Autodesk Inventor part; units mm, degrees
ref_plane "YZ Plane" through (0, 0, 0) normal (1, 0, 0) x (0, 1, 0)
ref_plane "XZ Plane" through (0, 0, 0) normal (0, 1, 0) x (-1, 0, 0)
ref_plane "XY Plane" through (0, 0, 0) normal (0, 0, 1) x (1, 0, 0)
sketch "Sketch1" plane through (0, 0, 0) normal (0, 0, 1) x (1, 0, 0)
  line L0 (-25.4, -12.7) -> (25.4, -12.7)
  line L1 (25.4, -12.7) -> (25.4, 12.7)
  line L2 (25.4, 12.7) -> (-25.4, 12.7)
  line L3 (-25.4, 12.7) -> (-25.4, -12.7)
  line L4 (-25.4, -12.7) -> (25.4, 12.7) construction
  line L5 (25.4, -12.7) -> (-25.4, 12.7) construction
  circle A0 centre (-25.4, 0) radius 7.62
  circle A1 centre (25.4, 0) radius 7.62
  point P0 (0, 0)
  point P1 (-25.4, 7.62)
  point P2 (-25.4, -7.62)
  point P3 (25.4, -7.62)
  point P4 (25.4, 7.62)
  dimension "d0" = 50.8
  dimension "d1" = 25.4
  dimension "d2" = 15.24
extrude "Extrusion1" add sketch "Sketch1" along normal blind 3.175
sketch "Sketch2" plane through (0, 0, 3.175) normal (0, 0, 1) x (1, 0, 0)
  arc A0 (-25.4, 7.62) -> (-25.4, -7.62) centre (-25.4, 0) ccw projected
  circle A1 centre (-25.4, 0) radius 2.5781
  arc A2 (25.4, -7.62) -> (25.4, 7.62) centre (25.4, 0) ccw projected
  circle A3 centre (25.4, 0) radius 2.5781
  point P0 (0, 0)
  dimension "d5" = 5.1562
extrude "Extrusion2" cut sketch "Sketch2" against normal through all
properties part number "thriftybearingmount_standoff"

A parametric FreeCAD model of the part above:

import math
import FreeCAD as App
import Part
import Sketcher
Q = App.Units.Quantity

doc = App.newDocument("Part")
body = doc.addObject("PartDesign::Body", "Body")

sketch1 = doc.addObject("Sketcher::SketchObject", "Sketch")
body.addObject(sketch1)
sketch1.AttachmentSupport = (doc.XY_Plane, [""])
sketch1.MapMode = "FlatFace"
sketch1.addGeometry(Part.LineSegment(App.Vector(-25, -8, 0), App.Vector(-25, -13, 0)), False)
sketch1.addGeometry(Part.LineSegment(App.Vector(-25, -13, 0), App.Vector(25, -13, 0)), False)
sketch1.addGeometry(Part.LineSegment(App.Vector(25, -13, 0), App.Vector(25, -8, 0)), False)
sketch1.addGeometry(Part.ArcOfCircle(Part.Circle(App.Vector(25, 0, 0), App.Vector(0, 0, 1), 8), math.radians(-90), math.radians(90)), False)
sketch1.addGeometry(Part.LineSegment(App.Vector(25, 8, 0), App.Vector(25, 13, 0)), False)
sketch1.addGeometry(Part.LineSegment(App.Vector(25, 13, 0), App.Vector(-25, 13, 0)), False)
sketch1.addGeometry(Part.LineSegment(App.Vector(-25, 13, 0), App.Vector(-25, 8, 0)), False)
sketch1.addGeometry(Part.ArcOfCircle(Part.Circle(App.Vector(-25, 0, 0), App.Vector(0, 0, 1), 8), math.radians(90), math.radians(270)), False)
sketch1.addConstraint(Sketcher.Constraint("Coincident", 0, 2, 1, 1))
sketch1.addConstraint(Sketcher.Constraint("Coincident", 1, 2, 2, 1))
sketch1.addConstraint(Sketcher.Constraint("Coincident", 2, 2, 3, 1))
sketch1.addConstraint(Sketcher.Constraint("Coincident", 3, 2, 4, 1))
sketch1.addConstraint(Sketcher.Constraint("Coincident", 4, 2, 5, 1))
sketch1.addConstraint(Sketcher.Constraint("Coincident", 5, 2, 6, 1))
sketch1.addConstraint(Sketcher.Constraint("Coincident", 6, 2, 7, 1))
sketch1.addConstraint(Sketcher.Constraint("Coincident", 7, 2, 0, 1))
sketch1.addConstraint(Sketcher.Constraint("Vertical", 0))
sketch1.addConstraint(Sketcher.Constraint("Horizontal", 1))
sketch1.addConstraint(Sketcher.Constraint("Vertical", 2))
sketch1.addConstraint(Sketcher.Constraint("Vertical", 4))
sketch1.addConstraint(Sketcher.Constraint("Horizontal", 5))
sketch1.addConstraint(Sketcher.Constraint("Vertical", 6))
sketch1.addConstraint(Sketcher.Constraint("Equal", 3, 7))
sketch1.addConstraint(Sketcher.Constraint("Symmetric", 3, 3, 7, 3, -1, 1))
sketch1.addConstraint(Sketcher.Constraint("Symmetric", 0, 2, 4, 2, -1, 1))
sketch1.addConstraint(Sketcher.Constraint("Symmetric", 3, 2, 6, 2, -2))
sketch1.addConstraint(Sketcher.Constraint("Vertical", 7, 3, 0, 2))
sketch1.addConstraint(Sketcher.Constraint("Vertical", 3, 3, 1, 2))
sketch1.addConstraint(Sketcher.Constraint("Radius", 3, Q("0.3 in")))
sketch1.addConstraint(Sketcher.Constraint("DistanceX", 1, 1, 1, 2, Q("2 in")))
sketch1.addConstraint(Sketcher.Constraint("DistanceY", 1, 2, 4, 2, Q("1 in")))
pad1 = doc.addObject("PartDesign::Pad", "Pad")
body.addObject(pad1)
pad1.Profile = sketch1
pad1.Length = Q("0.125 in")

sketch2 = doc.addObject("Sketcher::SketchObject", "Sketch001")
body.addObject(sketch2)
sketch2.AttachmentSupport = (doc.XY_Plane, [""])
sketch2.MapMode = "FlatFace"
sketch2.AttachmentOffset = App.Placement(App.Vector(0, 0, 0.125 * 25.4), App.Rotation())
sketch2.addGeometry(Part.Circle(App.Vector(-25.4, 0, 0), App.Vector(0, 0, 1), 2.6), False)
sketch2.addGeometry(Part.Circle(App.Vector(25.4, 0, 0), App.Vector(0, 0, 1), 2.6), False)
sketch2.addConstraint(Sketcher.Constraint("Equal", 0, 1))
sketch2.addConstraint(Sketcher.Constraint("Symmetric", 0, 3, 1, 3, -1, 1))
sketch2.addConstraint(Sketcher.Constraint("PointOnObject", 0, 3, -1))
sketch2.addConstraint(Sketcher.Constraint("Diameter", 0, Q("0.203 in")))
sketch2.addConstraint(Sketcher.Constraint("DistanceX", 0, 3, -1, 1, Q("1 in")))
pocket1 = doc.addObject("PartDesign::Pocket", "Pocket")
body.addObject(pocket1)
pocket1.Profile = sketch2
pocket1.Type = "ThroughAll"

doc.recompute()
